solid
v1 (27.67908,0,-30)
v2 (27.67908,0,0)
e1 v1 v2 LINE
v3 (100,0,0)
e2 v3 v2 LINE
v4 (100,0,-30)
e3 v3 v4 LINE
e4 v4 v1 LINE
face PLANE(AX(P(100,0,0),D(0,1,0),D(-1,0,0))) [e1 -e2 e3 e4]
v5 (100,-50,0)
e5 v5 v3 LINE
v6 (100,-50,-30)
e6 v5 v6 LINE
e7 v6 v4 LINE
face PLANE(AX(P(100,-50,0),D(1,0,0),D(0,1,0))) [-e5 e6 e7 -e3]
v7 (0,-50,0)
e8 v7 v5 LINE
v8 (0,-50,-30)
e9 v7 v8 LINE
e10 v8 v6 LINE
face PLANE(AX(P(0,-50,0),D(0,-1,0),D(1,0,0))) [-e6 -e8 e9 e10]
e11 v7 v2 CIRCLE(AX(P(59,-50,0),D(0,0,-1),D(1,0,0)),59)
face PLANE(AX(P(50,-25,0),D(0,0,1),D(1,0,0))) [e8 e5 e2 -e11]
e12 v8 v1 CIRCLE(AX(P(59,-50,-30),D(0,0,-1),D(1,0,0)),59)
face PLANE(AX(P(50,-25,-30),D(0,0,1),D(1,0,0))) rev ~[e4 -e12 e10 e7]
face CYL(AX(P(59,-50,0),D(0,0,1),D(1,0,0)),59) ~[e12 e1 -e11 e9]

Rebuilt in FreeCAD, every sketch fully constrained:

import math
import FreeCAD as App
import Part
import Sketcher

V = App.Vector


def add_polygon(sketch, points):
    """Adds a closed chain of lines whose ends are joined by coincident constraints."""
    first, n = sketch.GeometryCount, len(points)
    for a, b in zip(points, points[1:] + points[:1]):
        sketch.addGeometry(Part.LineSegment(App.Vector(*a, 0), App.Vector(*b, 0)), False)
    for i in range(n):
        sketch.addConstraint(Sketcher.Constraint("Coincident", first + i, 2, first + (i + 1) % n, 1))

doc = App.newDocument("Part")
params = doc.addObject("Spreadsheet::Sheet", "Params")
for row, (alias, value) in enumerate([
    ("sketch1_width", "100 mm"),
    ("sketch1_height", "50 mm"),
    ("pad1_length", "30 mm"),
    ("sketch2_radius", "59 mm"),
    ("sketch2_height", "50 mm"),
    ("pocket1_length", "30 mm"),
], start=1):
    params.set(f"A{row}", alias)
    params.set(f"B{row}", "=" + value)
    params.setAlias(f"B{row}", alias)

body = doc.addObject("PartDesign::Body", "Body")

sketch1 = body.newObject("Sketcher::SketchObject", "Sketch")
sketch1.AttachmentSupport = (doc.getObject("XY_Plane"), [""])
sketch1.MapMode = "FlatFace"
add_polygon(sketch1, [(0, 0), (0, -50), (100, -50), (100, 0)])
sketch1.addConstraint([
    Sketcher.Constraint("Vertical", 0),
    Sketcher.Constraint("Horizontal", 1),
    Sketcher.Constraint("Vertical", 2),
    Sketcher.Constraint("Horizontal", 3),
    Sketcher.Constraint("Coincident", 3, 2, -1, 1),
    Sketcher.Constraint("DistanceX", 1, 1, 1, 2, 100.0),
    Sketcher.Constraint("DistanceY", 0, 2, 0, 1, 50.0),
])
sketch1.setExpression("Constraints[9]", "Params.sketch1_width")
sketch1.setExpression("Constraints[10]", "Params.sketch1_height")
pad1 = body.newObject("PartDesign::Pad", "Pad")
pad1.Profile = sketch1
pad1.setExpression("Length", "Params.pad1_length")
pad1.Reversed = True

sketch2 = body.newObject("Sketcher::SketchObject", "Sketch001")
sketch2.AttachmentSupport = (doc.getObject("XY_Plane"), [""])
sketch2.MapMode = "FlatFace"
sketch2.addGeometry([
    Part.LineSegment(V(0, 0, 0), V(0, -50, 0)),
    Part.ArcOfCircle(Part.Circle(V(59, -50, 0), V(0, 0, 1), 59), math.radians(122), math.radians(180)),
    Part.LineSegment(V(28, 0, 0), V(0, 0, 0)),
], False)
sketch2.addConstraint([
    Sketcher.Constraint("Tangent", 0, 2, 1, 2),
    Sketcher.Constraint("Coincident", 1, 1, 2, 1),
    Sketcher.Constraint("Coincident", 2, 2, 0, 1),
    Sketcher.Constraint("Vertical", 0),
    Sketcher.Constraint("Horizontal", 2),
    Sketcher.Constraint("Coincident", 2, 2, -1, 1),
    Sketcher.Constraint("Radius", 1, 59.0),
    Sketcher.Constraint("DistanceY", 0, 2, 0, 1, 50.0),
])
sketch2.setExpression("Constraints[6]", "Params.sketch2_radius")
sketch2.setExpression("Constraints[7]", "Params.sketch2_height")
pocket1 = body.newObject("PartDesign::Pocket", "Pocket")
pocket1.Profile = sketch2
pocket1.setExpression("Length", "Params.pocket1_length")

doc.recompute()
